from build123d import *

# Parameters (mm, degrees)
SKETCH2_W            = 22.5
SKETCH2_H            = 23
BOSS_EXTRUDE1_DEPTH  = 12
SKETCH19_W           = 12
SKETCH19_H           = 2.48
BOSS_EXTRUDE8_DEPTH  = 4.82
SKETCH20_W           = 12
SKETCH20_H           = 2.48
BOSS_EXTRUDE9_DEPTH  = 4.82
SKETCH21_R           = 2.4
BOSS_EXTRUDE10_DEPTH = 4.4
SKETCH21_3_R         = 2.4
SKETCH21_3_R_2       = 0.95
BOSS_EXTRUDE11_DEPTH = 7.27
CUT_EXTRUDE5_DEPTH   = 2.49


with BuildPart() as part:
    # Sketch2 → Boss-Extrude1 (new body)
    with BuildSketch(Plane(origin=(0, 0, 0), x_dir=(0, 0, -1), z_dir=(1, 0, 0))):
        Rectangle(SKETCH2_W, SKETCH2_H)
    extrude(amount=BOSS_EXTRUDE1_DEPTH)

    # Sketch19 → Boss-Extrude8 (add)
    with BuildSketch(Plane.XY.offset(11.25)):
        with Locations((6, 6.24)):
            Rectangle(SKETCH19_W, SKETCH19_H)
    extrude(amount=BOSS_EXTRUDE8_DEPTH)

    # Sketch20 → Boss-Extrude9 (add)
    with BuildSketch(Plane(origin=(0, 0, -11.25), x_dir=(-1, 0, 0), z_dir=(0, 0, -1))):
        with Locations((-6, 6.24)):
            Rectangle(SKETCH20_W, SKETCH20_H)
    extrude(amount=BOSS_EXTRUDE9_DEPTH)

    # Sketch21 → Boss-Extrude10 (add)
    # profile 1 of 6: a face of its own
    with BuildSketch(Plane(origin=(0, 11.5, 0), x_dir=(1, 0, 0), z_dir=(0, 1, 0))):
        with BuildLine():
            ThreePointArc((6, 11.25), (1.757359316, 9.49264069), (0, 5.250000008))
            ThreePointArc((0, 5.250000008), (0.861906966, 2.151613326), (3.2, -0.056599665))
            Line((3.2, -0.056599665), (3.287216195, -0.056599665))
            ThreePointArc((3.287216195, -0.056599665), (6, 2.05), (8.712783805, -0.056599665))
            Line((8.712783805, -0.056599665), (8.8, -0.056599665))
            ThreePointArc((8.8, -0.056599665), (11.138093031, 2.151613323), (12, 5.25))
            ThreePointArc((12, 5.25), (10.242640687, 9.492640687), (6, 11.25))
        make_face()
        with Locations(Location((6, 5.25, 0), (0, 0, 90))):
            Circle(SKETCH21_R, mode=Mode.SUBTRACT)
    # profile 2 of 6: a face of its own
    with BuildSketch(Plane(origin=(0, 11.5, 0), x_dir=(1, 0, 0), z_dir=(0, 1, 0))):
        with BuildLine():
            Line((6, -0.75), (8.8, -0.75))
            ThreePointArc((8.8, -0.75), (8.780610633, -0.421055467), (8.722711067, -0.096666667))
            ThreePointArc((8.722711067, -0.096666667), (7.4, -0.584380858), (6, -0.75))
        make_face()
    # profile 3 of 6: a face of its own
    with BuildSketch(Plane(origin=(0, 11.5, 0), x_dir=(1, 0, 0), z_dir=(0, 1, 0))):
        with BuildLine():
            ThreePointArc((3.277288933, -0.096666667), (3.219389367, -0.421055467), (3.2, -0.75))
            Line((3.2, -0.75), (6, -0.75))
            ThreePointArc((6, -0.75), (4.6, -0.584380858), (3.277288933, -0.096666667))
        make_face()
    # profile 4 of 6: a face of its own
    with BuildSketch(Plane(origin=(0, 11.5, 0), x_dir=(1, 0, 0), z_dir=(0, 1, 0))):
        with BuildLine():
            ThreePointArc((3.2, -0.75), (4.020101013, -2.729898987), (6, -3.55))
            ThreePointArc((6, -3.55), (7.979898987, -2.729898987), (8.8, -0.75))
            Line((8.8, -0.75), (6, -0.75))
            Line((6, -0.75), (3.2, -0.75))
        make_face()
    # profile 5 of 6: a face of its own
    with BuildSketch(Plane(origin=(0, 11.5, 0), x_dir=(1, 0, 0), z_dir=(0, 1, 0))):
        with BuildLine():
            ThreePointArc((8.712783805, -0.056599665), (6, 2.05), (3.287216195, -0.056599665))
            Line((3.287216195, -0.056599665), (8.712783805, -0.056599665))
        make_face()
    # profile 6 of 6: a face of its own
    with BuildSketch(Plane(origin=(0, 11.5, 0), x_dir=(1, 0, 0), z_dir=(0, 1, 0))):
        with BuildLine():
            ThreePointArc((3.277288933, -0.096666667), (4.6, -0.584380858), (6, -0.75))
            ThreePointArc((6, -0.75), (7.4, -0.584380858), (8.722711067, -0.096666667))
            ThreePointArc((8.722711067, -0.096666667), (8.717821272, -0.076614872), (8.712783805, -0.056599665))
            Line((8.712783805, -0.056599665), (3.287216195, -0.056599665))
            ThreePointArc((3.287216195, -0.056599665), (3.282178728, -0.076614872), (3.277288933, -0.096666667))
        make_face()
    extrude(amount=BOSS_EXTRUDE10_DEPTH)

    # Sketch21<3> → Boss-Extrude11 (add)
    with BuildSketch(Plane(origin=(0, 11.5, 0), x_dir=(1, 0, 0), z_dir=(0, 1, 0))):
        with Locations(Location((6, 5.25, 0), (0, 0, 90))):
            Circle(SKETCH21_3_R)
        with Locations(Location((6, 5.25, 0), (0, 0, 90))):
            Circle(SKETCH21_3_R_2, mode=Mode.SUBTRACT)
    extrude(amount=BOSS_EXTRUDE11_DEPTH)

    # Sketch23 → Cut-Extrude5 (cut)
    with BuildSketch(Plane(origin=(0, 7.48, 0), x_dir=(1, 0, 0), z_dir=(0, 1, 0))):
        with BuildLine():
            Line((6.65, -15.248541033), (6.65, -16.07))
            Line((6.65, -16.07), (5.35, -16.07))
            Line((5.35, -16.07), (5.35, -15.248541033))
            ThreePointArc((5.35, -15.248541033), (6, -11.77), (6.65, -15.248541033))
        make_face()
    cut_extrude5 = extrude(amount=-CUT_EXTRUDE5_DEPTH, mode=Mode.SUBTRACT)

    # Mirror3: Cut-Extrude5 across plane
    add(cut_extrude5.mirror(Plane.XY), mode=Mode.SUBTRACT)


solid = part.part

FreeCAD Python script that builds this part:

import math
import FreeCAD as App
import Part
import Sketcher

V = App.Vector


def add_polygon(sketch, points):
    """Adds a closed chain of lines whose ends are joined by coincident constraints."""
    first, n = sketch.GeometryCount, len(points)
    for a, b in zip(points, points[1:] + points[:1]):
        sketch.addGeometry(Part.LineSegment(App.Vector(*a, 0), App.Vector(*b, 0)), False)
    for i in range(n):
        sketch.addConstraint(Sketcher.Constraint("Coincident", first + i, 2, first + (i + 1) % n, 1))

doc = App.newDocument("Part")
body = doc.addObject("PartDesign::Body", "Body")

sketch1 = body.newObject("Sketcher::SketchObject", "Sketch")
sketch1.AttachmentSupport = (doc.getObject("YZ_Plane"), [""])
sketch1.MapMode = "FlatFace"
add_polygon(sketch1, [(12, 11), (-12, 11), (-12, -11), (12, -11)])
sketch1.addConstraint([
    Sketcher.Constraint("Horizontal", 0),
    Sketcher.Constraint("Vertical", 1),
    Sketcher.Constraint("Horizontal", 2),
    Sketcher.Constraint("Vertical", 3),
    Sketcher.Constraint("Symmetric", 0, 2, 2, 2, -1, 1),
    Sketcher.Constraint("DistanceX", 0, 2, 0, 1, 23.0),
    Sketcher.Constraint("DistanceY", 1, 2, 1, 1, 22.5),
])
pad1 = body.newObject("PartDesign::Pad", "Pad")
pad1.Profile = sketch1
pad1.Length = 12

sketch2 = body.newObject("Sketcher::SketchObject", "Sketch001")
sketch2.AttachmentSupport = (doc.getObject("XY_Plane"), [""])
sketch2.MapMode = "FlatFace"
sketch2.AttachmentOffset = App.Placement(V(0, 0, 11.25), App.Rotation())
add_polygon(sketch2, [(0, 7.5), (0, 5), (12, 5), (12, 7.5)])
sketch2.addConstraint([
    Sketcher.Constraint("Vertical", 0),
    Sketcher.Constraint("Horizontal", 1),
    Sketcher.Constraint("Vertical", 2),
    Sketcher.Constraint("Horizontal", 3),
    Sketcher.Constraint("PointOnObject", 0, 2, -2),
    Sketcher.Constraint("DistanceX", 1, 1, 1, 2, 12.0),
    Sketcher.Constraint("DistanceY", -1, 1, 0, 2, 5.0),
    Sketcher.Constraint("DistanceY", 0, 2, 0, 1, 2.48),
])
pad2 = body.newObject("PartDesign::Pad", "Pad001")
pad2.Profile = sketch2
pad2.Length = 4.82

sketch3 = body.newObject("Sketcher::SketchObject", "Sketch002")
sketch3.AttachmentSupport = (doc.getObject("XY_Plane"), [""])
sketch3.MapMode = "FlatFace"
sketch3.AttachmentOffset = App.Placement(V(0, 0, -11.25), App.Rotation())
add_polygon(sketch3, [(12, 7.5), (12, 5), (0, 5), (0, 7.5)])
sketch3.addConstraint([
    Sketcher.Constraint("Vertical", 0),
    Sketcher.Constraint("Horizontal", 1),
    Sketcher.Constraint("Vertical", 2),
    Sketcher.Constraint("Horizontal", 3),
    Sketcher.Constraint("PointOnObject", 1, 2, -2),
    Sketcher.Constraint("DistanceX", 1, 2, 1, 1, 12.0),
    Sketcher.Constraint("DistanceY", -1, 1, 0, 2, 5.0),
    Sketcher.Constraint("DistanceY", 0, 2, 0, 1, 2.48),
])
pad3 = body.newObject("PartDesign::Pad", "Pad002")
pad3.Profile = sketch3
pad3.Length = 4.82
pad3.Reversed = True

sketch4 = body.newObject("Sketcher::SketchObject", "Sketch003")
sketch4.AttachmentSupport = (doc.getObject("XZ_Plane"), [""])
sketch4.MapMode = "FlatFace"
sketch4.AttachmentOffset = App.Placement(V(0, 0, -11.5), App.Rotation())
sketch4.addGeometry([
    Part.ArcOfCircle(Part.Circle(V(6, -5.25, 0), V(0, 0, 1), 6), math.radians(-180), math.radians(-90)),
    Part.ArcOfCircle(Part.Circle(V(6, -5.25, 0), V(0, 0, 1), 6), math.radians(118), math.radians(180)),
    Part.LineSegment(V(3.2, 0.057, 0), V(3.287, 0.057, 0)),
    Part.ArcOfCircle(Part.Circle(V(6, 0.75, 0), V(0, 0, 1), 2.8), math.radians(-166.51), math.radians(-165.66)),
    Part.ArcOfCircle(Part.Circle(V(6, 0.75, 0), V(0, 0, 1), 2.8), math.radians(-180), math.radians(-166.51)),
    Part.ArcOfCircle(Part.Circle(V(6, 0.75, 0), V(0, 0, 1), 2.8), math.radians(90), math.radians(180)),
    Part.ArcOfCircle(Part.Circle(V(6, 0.75, 0), V(0, 0, 1), 2.8), math.radians(0), math.radians(90)),
    Part.ArcOfCircle(Part.Circle(V(6, 0.75, 0), V(0, 0, 1), 2.8), math.radians(-13.49), math.radians(0)),
    Part.ArcOfCircle(Part.Circle(V(6, 0.75, 0), V(0, 0, 1), 2.8), math.radians(-14.34), math.radians(-13.49)),
    Part.LineSegment(V(8.713, 0.057, 0), V(8.8, 0.057, 0)),
    Part.ArcOfCircle(Part.Circle(V(6, -5.25, 0), V(0, 0, 1), 6), math.radians(0), math.radians(62)),
    Part.ArcOfCircle(Part.Circle(V(6, -5.25, 0), V(0, 0, 1), 6), math.radians(-90), math.radians(0)),
    Part.Circle(V(6, -5.25, 0), V(0, 0, 1), 2.4),
], False)
sketch4.addConstraint([
    Sketcher.Constraint("Tangent", 0, 1, 1, 2),
    Sketcher.Constraint("Coincident", 1, 1, 2, 1),
    Sketcher.Constraint("Coincident", 2, 2, 3, 2),
    Sketcher.Constraint("Tangent", 3, 1, 4, 2),
    Sketcher.Constraint("Tangent", 4, 1, 5, 2),
    Sketcher.Constraint("Tangent", 5, 1, 6, 2),
    Sketcher.Constraint("Tangent", 6, 1, 7, 2),
    Sketcher.Constraint("Tangent", 7, 1, 8, 2),
    Sketcher.Constraint("Coincident", 8, 1, 9, 1),
    Sketcher.Constraint("Coincident", 9, 2, 10, 2),
    Sketcher.Constraint("Tangent", 10, 1, 11, 2),
    Sketcher.Constraint("Tangent", 11, 1, 0, 2),
    Sketcher.Constraint("Horizontal", 2),
    Sketcher.Constraint("Horizontal", 9),
    Sketcher.Constraint("Coincident", 5, 3, 3, 3),
    Sketcher.Constraint("Coincident", 7, 3, 3, 3),
    Sketcher.Constraint("Coincident", 10, 3, 0, 3),
    Sketcher.Constraint("Coincident", 12, 3, 0, 3),
    Sketcher.Constraint("Equal", 0, 1),
    Sketcher.Constraint("Equal", 3, 8),
    Sketcher.Constraint("PointOnObject", 0, 1, -2),
    Sketcher.Constraint("Horizontal", 12, 3, 0, 1),
    Sketcher.Constraint("Horizontal", 8, 3, 4, 1),
    Sketcher.Constraint("Horizontal", 4, 1, 6, 1),
    Sketcher.Constraint("Horizontal", 3, 1, 7, 1),
    Sketcher.Constraint("Horizontal", 2, 2, 8, 1),
    Sketcher.Constraint("Horizontal", 0, 1, 10, 1),
    Sketcher.Constraint("Vertical", 1, 3, 4, 3),
    Sketcher.Constraint("Vertical", 1, 1, 4, 1),
    Sketcher.Constraint("Vertical", 12, 3, 5, 1),
    Sketcher.Constraint("Vertical", 5, 1, 11, 1),
    Sketcher.Constraint("Radius", 0, 6.0),
    Sketcher.Constraint("Diameter", 12, 4.8),
    Sketcher.Constraint("Radius", 4, 2.8),
    Sketcher.Constraint("DistanceY", 1, 3, 3, 3, 6.000001),
    Sketcher.Constraint("DistanceY", 0, 3, -1, 1, 5.25),
    Sketcher.Constraint("DistanceX", -1, 1, 3, 1, 3.277289),
])
pad4 = body.newObject("PartDesign::Pad", "Pad003")
pad4.Profile = sketch4
pad4.Length = 4.4
pad4.Reversed = True

sketch5 = body.newObject("Sketcher::SketchObject", "Sketch004")
sketch5.AttachmentSupport = (doc.getObject("XZ_Plane"), [""])
sketch5.MapMode = "FlatFace"
sketch5.AttachmentOffset = App.Placement(V(0, 0, -11.5), App.Rotation())
sketch5.addGeometry([
    Part.Circle(V(6, -5.2, 0), V(0, 0, 1), 2.4),
    Part.Circle(V(6, -5.2, 0), V(0, 0, 1), 0.9),
], False)
sketch5.addConstraint([
    Sketcher.Constraint("Coincident", 1, 3, 0, 3),
    Sketcher.Constraint("Diameter", 0, 4.8),
    Sketcher.Constraint("Diameter", 1, 1.9),
    Sketcher.Constraint("DistanceX", -1, 1, 0, 3, 6.0),
    Sketcher.Constraint("DistanceY", 0, 3, -1, 1, 5.25),
])
pad5 = body.newObject("PartDesign::Pad", "Pad004")
pad5.Profile = sketch5
pad5.Length = 7.27
pad5.Reversed = True

sketch6 = body.newObject("Sketcher::SketchObject", "Sketch005")
sketch6.AttachmentSupport = (doc.getObject("XZ_Plane"), [""])
sketch6.MapMode = "FlatFace"
sketch6.AttachmentOffset = App.Placement(V(0, 0, -7.48), App.Rotation())
sketch6.addGeometry([
    Part.LineSegment(V(6.7, 16.1, 0), V(6.7, 15.2, 0)),
    Part.ArcOfCircle(Part.Circle(V(6, 13.6, 0), V(0, 0, 1), 1.8), math.radians(111), math.radians(429)),
    Part.LineSegment(V(5.3, 15.2, 0), V(5.3, 16.1, 0)),
    Part.LineSegment(V(5.3, 16.1, 0), V(6.7, 16.1, 0)),
], False)
sketch6.addConstraint([
    Sketcher.Constraint("Coincident", 0, 2, 1, 2),
    Sketcher.Constraint("Coincident", 1, 1, 2, 1),
    Sketcher.Constraint("Coincident", 2, 2, 3, 1),
    Sketcher.Constraint("Coincident", 3, 2, 0, 1),
    Sketcher.Constraint("Vertical", 0),
    Sketcher.Constraint("Vertical", 2),
    Sketcher.Constraint("Horizontal", 3),
    Sketcher.Constraint("Horizontal", 0, 2, 1, 1),
    Sketcher.Constraint("Radius", 1, 1.8),
    Sketcher.Constraint("DistanceX", 3, 1, 3, 2, 1.3),
    Sketcher.Constraint("DistanceX", -1, 1, 1, 3, 6.0),
    Sketcher.Constraint("DistanceY", 1, 3, 2, 2, 2.5),
    Sketcher.Constraint("DistanceY", -1, 1, 1, 3, 13.57),
])
pocket1 = body.newObject("PartDesign::Pocket", "Pocket")
pocket1.Profile = sketch6
pocket1.Length = 2.49
pocket1.Reversed = True
doc.recompute()

mirrored = body.newObject("PartDesign::Mirrored", "Mirrored")
mirrored.Originals = [pocket1]
mirrored.MirrorPlane = (doc.getObject("XY_Plane"), [""])
body.Tip = mirrored

doc.recompute()
